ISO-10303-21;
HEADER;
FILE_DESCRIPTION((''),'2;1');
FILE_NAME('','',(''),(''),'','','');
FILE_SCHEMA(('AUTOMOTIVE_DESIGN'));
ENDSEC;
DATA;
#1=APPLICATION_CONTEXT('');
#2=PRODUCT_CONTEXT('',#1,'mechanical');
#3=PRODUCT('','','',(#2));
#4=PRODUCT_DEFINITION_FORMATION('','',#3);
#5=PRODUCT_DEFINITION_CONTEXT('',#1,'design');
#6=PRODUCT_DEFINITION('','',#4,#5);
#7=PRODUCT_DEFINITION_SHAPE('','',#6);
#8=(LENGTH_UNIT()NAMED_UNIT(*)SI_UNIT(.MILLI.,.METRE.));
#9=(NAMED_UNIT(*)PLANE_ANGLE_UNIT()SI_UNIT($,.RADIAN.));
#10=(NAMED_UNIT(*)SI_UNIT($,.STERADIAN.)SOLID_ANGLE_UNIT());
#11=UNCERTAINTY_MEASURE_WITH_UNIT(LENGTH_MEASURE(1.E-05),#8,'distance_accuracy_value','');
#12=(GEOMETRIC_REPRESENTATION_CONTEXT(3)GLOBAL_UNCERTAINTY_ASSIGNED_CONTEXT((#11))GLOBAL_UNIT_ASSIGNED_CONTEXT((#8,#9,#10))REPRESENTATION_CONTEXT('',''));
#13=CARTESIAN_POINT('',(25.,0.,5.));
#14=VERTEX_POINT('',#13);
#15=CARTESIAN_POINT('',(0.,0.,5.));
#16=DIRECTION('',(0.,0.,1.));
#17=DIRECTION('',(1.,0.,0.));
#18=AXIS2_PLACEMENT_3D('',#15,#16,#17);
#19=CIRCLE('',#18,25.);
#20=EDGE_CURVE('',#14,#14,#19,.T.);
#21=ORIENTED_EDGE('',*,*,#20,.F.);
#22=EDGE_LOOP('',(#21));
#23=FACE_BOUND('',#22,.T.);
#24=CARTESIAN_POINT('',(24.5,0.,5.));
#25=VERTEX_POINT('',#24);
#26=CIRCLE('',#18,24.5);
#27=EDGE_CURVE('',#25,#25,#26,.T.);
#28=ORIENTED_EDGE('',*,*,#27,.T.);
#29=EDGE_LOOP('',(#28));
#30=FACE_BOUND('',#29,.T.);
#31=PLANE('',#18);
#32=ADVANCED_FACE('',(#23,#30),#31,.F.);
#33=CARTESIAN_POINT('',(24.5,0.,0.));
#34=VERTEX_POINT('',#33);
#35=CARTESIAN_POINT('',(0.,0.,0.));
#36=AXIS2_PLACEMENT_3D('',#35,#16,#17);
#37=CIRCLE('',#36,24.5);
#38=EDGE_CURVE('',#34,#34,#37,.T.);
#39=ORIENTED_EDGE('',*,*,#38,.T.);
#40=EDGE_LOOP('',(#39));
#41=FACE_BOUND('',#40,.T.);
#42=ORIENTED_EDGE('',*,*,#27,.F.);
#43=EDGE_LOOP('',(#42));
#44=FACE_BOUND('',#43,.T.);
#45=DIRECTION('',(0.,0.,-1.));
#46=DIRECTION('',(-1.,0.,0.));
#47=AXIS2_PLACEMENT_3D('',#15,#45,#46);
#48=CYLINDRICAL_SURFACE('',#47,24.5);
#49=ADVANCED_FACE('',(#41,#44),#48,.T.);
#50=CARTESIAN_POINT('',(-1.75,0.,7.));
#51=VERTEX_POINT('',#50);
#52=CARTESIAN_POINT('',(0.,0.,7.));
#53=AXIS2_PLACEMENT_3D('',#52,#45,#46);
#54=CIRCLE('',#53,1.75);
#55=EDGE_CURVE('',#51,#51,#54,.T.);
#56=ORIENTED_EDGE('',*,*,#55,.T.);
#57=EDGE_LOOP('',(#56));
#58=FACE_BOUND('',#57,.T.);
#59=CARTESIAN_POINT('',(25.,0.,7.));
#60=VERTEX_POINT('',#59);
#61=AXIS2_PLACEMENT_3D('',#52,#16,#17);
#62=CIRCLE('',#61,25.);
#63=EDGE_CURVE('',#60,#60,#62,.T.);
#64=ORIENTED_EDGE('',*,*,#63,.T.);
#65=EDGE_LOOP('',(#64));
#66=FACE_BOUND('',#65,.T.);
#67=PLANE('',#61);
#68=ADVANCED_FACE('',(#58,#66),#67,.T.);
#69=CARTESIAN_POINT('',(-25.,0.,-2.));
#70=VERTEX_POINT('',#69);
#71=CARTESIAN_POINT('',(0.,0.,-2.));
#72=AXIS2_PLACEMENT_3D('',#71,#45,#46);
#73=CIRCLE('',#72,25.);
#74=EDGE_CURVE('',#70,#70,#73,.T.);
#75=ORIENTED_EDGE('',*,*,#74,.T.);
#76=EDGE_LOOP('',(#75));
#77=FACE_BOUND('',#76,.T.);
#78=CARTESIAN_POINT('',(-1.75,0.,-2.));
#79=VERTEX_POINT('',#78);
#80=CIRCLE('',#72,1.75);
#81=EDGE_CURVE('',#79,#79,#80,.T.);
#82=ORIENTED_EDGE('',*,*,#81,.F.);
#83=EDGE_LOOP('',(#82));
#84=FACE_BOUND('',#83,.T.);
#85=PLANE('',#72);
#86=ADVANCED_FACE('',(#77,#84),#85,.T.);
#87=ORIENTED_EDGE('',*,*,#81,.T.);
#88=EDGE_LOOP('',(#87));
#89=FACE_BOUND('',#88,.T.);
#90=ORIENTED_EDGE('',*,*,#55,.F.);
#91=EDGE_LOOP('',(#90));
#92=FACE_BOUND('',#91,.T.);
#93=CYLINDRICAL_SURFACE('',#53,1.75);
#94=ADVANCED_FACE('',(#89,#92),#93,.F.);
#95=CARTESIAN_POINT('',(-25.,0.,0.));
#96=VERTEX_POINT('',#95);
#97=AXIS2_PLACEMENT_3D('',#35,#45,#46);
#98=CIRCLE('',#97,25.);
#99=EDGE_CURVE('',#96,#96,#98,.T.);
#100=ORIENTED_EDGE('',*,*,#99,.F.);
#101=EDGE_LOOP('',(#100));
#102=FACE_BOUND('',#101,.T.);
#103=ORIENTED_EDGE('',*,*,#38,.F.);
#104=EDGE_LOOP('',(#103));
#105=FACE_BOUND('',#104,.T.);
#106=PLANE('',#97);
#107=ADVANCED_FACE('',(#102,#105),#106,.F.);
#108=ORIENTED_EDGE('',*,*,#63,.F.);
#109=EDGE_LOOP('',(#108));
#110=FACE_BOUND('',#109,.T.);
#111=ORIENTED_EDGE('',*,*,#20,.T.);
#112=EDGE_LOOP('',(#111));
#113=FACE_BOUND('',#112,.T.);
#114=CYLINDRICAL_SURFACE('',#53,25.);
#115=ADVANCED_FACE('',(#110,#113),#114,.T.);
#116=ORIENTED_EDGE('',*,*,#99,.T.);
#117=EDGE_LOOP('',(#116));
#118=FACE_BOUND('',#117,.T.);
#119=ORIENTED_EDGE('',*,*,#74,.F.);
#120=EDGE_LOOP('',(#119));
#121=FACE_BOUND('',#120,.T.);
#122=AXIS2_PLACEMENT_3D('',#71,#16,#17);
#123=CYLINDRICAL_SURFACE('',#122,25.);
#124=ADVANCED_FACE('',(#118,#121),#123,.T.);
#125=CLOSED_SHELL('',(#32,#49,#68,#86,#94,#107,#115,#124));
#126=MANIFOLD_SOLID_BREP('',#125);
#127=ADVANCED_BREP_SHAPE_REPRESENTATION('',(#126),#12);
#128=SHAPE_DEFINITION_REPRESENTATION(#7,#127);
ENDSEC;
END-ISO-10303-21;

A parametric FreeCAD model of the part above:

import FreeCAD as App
import Part
import Sketcher

V = App.Vector
Q = App.Units.Quantity

doc = App.newDocument("Part")
params = doc.addObject("Spreadsheet::Sheet", "Params")
for row, (alias, value) in enumerate([
    ("sketch1_diameter", "49 mm"),
    ("pad1_length", "5 mm"),
    ("sketch2_diameter", "50 mm"),
    ("pad2_length", "2 mm"),
    ("sketch3_diameter", "50 mm"),
    ("pad3_length", "2 mm"),
    ("sketch4_diameter", "3.5 mm"),
], start=1):
    params.set(f"A{row}", alias)
    params.set(f"B{row}", "=" + value)
    params.setAlias(f"B{row}", alias)

body = doc.addObject("PartDesign::Body", "Body")

sketch1 = body.newObject("Sketcher::SketchObject", "Sketch")
sketch1.AttachmentSupport = (doc.getObject("XY_Plane"), [""])
sketch1.MapMode = "FlatFace"
sketch1.addGeometry(Part.Circle(V(0, 0, 0), V(0, 0, 1), 24), False)
sketch1.addConstraint(Sketcher.Constraint("Coincident", 0, 3, -1, 1))
sketch1.addConstraint(Sketcher.Constraint("Diameter", 0, Q("49 mm")))
sketch1.setExpression("Constraints[1]", "Params.sketch1_diameter")
pad1 = body.newObject("PartDesign::Pad", "Pad")
pad1.Profile = sketch1
pad1.setExpression("Length", "Params.pad1_length")

sketch2 = body.newObject("Sketcher::SketchObject", "Sketch001")
sketch2.AttachmentSupport = (doc.getObject("XY_Plane"), [""])
sketch2.MapMode = "FlatFace"
sketch2.addGeometry(Part.Circle(V(0, 0, 0), V(0, 0, 1), 25), False)
sketch2.addConstraint(Sketcher.Constraint("Coincident", 0, 3, -1, 1))
sketch2.addConstraint(Sketcher.Constraint("Diameter", 0, Q("50 mm")))
sketch2.setExpression("Constraints[1]", "Params.sketch2_diameter")
pad2 = body.newObject("PartDesign::Pad", "Pad001")
pad2.Profile = sketch2
pad2.setExpression("Length", "Params.pad2_length")
pad2.Reversed = True

sketch3 = body.newObject("Sketcher::SketchObject", "Sketch002")
sketch3.AttachmentSupport = (doc.getObject("XY_Plane"), [""])
sketch3.MapMode = "FlatFace"
sketch3.AttachmentOffset = App.Placement(V(0, 0, 7), App.Rotation())
sketch3.addGeometry(Part.Circle(V(0, 0, 0), V(0, 0, 1), 25), False)
sketch3.addConstraint(Sketcher.Constraint("Coincident", 0, 3, -1, 1))
sketch3.addConstraint(Sketcher.Constraint("Diameter", 0, Q("50 mm")))
sketch3.setExpression("Constraints[1]", "Params.sketch3_diameter")
pad3 = body.newObject("PartDesign::Pad", "Pad002")
pad3.Profile = sketch3
pad3.setExpression("Length", "Params.pad3_length")
pad3.Reversed = True

sketch4 = body.newObject("Sketcher::SketchObject", "Sketch003")
sketch4.AttachmentSupport = (doc.getObject("XY_Plane"), [""])
sketch4.MapMode = "FlatFace"
sketch4.AttachmentOffset = App.Placement(V(0, 0, -2), App.Rotation())
sketch4.addGeometry(Part.Circle(V(0, 0, 0), V(0, 0, 1), 1.8), False)
sketch4.addConstraint(Sketcher.Constraint("Coincident", 0, 3, -1, 1))
sketch4.addConstraint(Sketcher.Constraint("Diameter", 0, Q("3.5 mm")))
sketch4.setExpression("Constraints[1]", "Params.sketch4_diameter")
pocket1 = body.newObject("PartDesign::Pocket", "Pocket")
pocket1.Profile = sketch4
pocket1.Type = "ThroughAll"
pocket1.Reversed = True

doc.recompute()
